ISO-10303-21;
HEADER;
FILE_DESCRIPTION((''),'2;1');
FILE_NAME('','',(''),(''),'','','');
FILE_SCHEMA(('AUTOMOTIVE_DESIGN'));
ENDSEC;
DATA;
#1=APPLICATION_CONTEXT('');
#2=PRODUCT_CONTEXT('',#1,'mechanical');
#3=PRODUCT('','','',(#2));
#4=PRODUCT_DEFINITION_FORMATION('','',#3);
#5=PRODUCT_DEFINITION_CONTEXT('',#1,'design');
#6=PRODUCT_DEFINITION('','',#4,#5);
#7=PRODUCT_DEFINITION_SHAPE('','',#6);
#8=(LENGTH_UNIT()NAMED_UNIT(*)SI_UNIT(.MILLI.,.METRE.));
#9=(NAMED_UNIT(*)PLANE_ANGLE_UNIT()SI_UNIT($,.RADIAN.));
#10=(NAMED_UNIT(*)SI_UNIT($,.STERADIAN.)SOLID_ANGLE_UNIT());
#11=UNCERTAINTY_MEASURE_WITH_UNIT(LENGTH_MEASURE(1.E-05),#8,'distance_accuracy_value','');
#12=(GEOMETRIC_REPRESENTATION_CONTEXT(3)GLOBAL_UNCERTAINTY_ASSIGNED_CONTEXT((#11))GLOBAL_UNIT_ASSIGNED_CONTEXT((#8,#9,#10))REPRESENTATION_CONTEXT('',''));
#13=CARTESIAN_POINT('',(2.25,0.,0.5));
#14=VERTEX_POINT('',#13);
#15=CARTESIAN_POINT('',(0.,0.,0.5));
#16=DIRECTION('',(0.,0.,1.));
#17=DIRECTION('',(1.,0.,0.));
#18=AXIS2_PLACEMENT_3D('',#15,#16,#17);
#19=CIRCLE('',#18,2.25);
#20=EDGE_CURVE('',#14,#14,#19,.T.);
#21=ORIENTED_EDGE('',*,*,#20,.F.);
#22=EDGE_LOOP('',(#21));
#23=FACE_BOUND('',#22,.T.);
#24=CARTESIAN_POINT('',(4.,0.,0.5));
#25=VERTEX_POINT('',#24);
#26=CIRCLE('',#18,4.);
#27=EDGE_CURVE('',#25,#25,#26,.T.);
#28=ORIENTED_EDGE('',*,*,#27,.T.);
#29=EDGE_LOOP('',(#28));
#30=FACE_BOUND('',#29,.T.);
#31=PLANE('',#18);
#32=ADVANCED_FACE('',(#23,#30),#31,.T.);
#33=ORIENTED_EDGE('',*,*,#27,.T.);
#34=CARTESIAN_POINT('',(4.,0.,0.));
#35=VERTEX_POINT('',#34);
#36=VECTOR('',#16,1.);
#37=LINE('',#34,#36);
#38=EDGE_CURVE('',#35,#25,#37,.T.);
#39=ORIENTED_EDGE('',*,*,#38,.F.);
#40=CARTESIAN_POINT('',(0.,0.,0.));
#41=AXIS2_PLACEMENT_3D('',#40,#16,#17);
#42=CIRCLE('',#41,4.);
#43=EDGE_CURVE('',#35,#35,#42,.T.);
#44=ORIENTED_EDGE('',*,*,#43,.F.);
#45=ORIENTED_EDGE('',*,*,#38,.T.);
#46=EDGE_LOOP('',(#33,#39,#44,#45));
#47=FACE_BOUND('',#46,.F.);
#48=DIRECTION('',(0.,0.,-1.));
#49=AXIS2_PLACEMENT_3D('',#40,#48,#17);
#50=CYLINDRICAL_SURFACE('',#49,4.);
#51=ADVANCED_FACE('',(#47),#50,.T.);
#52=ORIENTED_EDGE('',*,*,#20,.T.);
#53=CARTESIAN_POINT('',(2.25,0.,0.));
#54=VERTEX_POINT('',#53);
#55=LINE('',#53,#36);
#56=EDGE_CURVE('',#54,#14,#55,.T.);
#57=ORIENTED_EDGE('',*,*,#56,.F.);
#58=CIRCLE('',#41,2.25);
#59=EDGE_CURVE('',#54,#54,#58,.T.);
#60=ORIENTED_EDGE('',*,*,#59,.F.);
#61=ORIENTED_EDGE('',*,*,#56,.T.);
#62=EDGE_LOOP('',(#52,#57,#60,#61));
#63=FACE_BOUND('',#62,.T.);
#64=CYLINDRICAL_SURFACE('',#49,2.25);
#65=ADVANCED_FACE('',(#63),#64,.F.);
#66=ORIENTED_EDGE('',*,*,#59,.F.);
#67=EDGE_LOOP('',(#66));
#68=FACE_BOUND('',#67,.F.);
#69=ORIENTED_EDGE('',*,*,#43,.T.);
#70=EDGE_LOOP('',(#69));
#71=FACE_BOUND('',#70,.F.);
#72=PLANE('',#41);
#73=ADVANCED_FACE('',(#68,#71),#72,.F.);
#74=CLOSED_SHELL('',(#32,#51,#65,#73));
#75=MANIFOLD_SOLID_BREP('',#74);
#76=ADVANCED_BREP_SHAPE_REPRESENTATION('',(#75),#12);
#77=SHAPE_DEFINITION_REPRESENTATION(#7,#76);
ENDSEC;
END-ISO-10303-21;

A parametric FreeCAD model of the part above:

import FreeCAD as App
import Part
import Sketcher
from FreeCAD import Vector

doc = App.newDocument("Part")
body = doc.addObject("PartDesign::Body", "Body")

sketch1 = doc.addObject("Sketcher::SketchObject", "Sketch")
body.addObject(sketch1)
sketch1.AttachmentSupport = (doc.XY_Plane, [""])
sketch1.MapMode = "FlatFace"
sketch1.addGeometry(Part.Circle(Vector(0, 0, 0), Vector(0, 0, 1), 4), False)
sketch1.addGeometry(Part.Circle(Vector(0, 0, 0), Vector(0, 0, 1), 2.2), False)
sketch1.addConstraint(Sketcher.Constraint("Coincident", 0, 3, -1, 1))
sketch1.addConstraint(Sketcher.Constraint("Coincident", 1, 3, -1, 1))
sketch1.addConstraint(Sketcher.Constraint("Diameter", 0, 8.0))
sketch1.addConstraint(Sketcher.Constraint("Diameter", 1, 4.5))
pad1 = doc.addObject("PartDesign::Pad", "Pad")
body.addObject(pad1)
pad1.Profile = sketch1
pad1.Length = 0.5

doc.recompute()
